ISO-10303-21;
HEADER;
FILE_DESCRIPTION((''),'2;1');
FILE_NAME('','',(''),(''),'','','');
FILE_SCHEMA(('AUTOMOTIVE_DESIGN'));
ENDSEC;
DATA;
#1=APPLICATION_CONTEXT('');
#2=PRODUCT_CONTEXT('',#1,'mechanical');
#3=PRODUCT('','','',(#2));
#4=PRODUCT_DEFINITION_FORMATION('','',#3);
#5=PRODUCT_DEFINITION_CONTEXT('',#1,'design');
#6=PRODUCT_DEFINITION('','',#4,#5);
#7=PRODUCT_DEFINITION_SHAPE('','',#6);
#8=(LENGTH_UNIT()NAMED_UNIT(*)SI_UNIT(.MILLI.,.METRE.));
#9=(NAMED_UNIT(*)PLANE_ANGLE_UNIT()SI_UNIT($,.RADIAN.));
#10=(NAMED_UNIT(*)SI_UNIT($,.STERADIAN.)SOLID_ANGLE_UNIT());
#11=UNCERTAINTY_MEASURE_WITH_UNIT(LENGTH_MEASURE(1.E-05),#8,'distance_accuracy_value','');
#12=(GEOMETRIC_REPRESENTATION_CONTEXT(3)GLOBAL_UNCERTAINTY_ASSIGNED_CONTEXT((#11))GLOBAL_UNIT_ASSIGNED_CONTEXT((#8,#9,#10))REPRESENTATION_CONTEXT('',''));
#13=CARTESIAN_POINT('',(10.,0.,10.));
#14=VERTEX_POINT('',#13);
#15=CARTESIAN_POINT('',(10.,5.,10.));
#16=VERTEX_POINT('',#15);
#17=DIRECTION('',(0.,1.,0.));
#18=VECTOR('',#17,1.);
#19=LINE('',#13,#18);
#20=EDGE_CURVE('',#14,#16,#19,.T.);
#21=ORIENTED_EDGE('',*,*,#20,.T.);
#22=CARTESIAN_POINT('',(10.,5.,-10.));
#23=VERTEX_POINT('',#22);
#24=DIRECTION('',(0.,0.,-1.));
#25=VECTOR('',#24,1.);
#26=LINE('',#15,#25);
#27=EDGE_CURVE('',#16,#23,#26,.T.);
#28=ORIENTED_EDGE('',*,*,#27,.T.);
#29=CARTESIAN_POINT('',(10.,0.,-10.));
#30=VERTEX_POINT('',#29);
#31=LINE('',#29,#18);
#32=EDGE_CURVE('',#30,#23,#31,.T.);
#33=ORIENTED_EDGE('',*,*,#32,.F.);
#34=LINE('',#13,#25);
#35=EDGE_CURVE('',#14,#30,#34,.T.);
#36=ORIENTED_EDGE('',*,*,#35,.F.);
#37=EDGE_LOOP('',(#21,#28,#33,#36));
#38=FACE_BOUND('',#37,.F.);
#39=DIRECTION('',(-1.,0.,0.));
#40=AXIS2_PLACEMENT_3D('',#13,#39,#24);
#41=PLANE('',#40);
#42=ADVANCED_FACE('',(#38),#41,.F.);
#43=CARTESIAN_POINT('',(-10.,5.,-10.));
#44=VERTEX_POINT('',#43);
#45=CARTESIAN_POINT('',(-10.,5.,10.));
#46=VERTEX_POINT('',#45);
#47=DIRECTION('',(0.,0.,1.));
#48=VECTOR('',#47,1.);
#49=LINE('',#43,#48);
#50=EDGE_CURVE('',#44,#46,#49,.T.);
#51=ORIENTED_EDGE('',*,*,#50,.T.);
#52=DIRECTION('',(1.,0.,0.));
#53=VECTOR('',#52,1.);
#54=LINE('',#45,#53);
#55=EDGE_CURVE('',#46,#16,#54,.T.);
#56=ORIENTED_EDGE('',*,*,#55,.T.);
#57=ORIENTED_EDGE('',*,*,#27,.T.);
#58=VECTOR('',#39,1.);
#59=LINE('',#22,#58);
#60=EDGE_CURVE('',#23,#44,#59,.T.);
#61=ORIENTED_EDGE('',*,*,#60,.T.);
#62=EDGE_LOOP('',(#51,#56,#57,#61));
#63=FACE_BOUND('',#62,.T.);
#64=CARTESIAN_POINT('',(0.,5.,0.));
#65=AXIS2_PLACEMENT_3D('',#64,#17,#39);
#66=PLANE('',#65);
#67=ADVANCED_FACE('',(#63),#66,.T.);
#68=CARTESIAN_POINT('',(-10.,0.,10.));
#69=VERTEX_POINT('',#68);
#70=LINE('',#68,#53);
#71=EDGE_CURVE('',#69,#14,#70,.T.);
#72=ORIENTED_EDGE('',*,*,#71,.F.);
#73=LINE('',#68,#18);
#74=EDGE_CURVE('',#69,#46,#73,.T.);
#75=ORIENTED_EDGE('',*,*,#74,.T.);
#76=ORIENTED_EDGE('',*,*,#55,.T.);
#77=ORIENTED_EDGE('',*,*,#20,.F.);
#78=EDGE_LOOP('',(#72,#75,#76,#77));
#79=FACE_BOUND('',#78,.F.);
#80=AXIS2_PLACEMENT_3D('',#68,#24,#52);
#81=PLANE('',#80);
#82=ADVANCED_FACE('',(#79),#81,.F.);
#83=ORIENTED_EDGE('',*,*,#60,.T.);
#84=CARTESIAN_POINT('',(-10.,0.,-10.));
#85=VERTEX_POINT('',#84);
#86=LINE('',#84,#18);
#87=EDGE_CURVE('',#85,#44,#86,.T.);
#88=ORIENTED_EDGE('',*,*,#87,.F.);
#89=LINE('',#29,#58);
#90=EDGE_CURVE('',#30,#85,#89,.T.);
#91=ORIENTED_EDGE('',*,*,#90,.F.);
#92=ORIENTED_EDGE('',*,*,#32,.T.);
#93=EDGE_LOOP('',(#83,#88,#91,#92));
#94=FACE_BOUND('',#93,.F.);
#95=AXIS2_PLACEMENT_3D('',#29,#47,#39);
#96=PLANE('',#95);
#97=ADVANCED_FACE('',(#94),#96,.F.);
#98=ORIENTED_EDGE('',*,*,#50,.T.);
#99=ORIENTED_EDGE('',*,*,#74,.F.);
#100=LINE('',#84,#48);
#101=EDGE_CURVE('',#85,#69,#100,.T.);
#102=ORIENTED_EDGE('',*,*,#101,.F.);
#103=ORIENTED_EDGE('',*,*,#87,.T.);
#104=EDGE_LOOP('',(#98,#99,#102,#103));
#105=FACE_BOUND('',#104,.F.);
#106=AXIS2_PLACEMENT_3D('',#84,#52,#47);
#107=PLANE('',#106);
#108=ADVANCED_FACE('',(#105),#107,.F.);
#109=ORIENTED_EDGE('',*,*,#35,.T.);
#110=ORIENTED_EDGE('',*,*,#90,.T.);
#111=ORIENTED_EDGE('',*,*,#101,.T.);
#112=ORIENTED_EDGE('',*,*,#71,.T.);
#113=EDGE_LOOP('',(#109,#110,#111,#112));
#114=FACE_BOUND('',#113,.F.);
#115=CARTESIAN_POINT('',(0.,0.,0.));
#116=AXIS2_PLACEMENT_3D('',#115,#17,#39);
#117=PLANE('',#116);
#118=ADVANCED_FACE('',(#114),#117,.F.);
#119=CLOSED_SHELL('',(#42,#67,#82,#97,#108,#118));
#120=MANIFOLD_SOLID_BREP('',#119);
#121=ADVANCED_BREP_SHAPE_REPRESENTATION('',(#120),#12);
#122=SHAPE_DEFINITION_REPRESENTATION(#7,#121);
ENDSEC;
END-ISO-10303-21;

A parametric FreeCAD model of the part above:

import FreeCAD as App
import Part
import Sketcher
from FreeCAD import Vector
Q = App.Units.Quantity

doc = App.newDocument("Part")
body = doc.addObject("PartDesign::Body", "Body")

sketch1 = doc.addObject("Sketcher::SketchObject", "Sketch")
body.addObject(sketch1)
sketch1.AttachmentSupport = (doc.XZ_Plane, [""])
sketch1.MapMode = "FlatFace"
sketch1.addGeometry(Part.LineSegment(Vector(10, 10, 0), Vector(10, -10, 0)), False)
sketch1.addGeometry(Part.LineSegment(Vector(10, -10, 0), Vector(-10, -10, 0)), False)
sketch1.addGeometry(Part.LineSegment(Vector(-10, -10, 0), Vector(-10, 10, 0)), False)
sketch1.addGeometry(Part.LineSegment(Vector(-10, 10, 0), Vector(10, 10, 0)), False)
sketch1.addConstraint(Sketcher.Constraint("Coincident", 0, 2, 1, 1))
sketch1.addConstraint(Sketcher.Constraint("Coincident", 1, 2, 2, 1))
sketch1.addConstraint(Sketcher.Constraint("Coincident", 2, 2, 3, 1))
sketch1.addConstraint(Sketcher.Constraint("Coincident", 3, 2, 0, 1))
sketch1.addConstraint(Sketcher.Constraint("Vertical", 0))
sketch1.addConstraint(Sketcher.Constraint("Horizontal", 1))
sketch1.addConstraint(Sketcher.Constraint("Vertical", 2))
sketch1.addConstraint(Sketcher.Constraint("Horizontal", 3))
sketch1.addConstraint(Sketcher.Constraint("Symmetric", 0, 2, 2, 2, -1, 1))
sketch1.addConstraint(Sketcher.Constraint("Equal", 3, 0))
sketch1.addConstraint(Sketcher.Constraint("DistanceX", 1, 2, 1, 1, Q("20 mm")))
pad1 = doc.addObject("PartDesign::Pad", "Pad")
body.addObject(pad1)
pad1.Profile = sketch1
pad1.Length = 5
pad1.Reversed = True

doc.recompute()
